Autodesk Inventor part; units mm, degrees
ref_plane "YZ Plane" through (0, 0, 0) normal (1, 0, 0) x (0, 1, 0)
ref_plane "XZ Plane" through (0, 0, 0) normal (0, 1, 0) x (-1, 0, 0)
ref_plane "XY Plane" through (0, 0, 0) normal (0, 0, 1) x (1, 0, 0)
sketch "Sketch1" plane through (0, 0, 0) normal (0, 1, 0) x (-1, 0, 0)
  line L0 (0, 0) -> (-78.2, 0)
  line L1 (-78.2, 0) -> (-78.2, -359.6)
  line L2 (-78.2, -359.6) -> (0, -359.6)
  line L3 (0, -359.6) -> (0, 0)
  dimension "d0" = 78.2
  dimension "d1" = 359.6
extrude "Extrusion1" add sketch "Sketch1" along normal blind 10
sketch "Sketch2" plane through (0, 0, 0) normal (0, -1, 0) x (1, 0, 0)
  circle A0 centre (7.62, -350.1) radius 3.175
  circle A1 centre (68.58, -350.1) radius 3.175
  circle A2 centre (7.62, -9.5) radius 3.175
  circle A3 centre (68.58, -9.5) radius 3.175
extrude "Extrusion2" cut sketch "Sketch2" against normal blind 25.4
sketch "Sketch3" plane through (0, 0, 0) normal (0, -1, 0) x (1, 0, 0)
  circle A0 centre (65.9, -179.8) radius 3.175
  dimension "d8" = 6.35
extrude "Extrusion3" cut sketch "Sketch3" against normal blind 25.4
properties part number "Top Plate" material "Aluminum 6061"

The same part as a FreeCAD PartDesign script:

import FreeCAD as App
import Part
import Sketcher
from FreeCAD import Vector

doc = App.newDocument("Part")
body = doc.addObject("PartDesign::Body", "Body")

# Sketch on XZ plane
sketch1 = body.newObject("Sketcher::SketchObject", "Sketch")
sketch1.AttachmentSupport = (doc.getObject("XZ_Plane"), [""])
sketch1.MapMode = "FlatFace"
sketch1.addGeometry([
    Part.LineSegment(Vector(0, -359.6, 0), Vector(0, 0, 0)),
    Part.LineSegment(Vector(0, 0, 0), Vector(78.2, 0, 0)),
    Part.LineSegment(Vector(78.2, 0, 0), Vector(78.2, -359.6, 0)),
    Part.LineSegment(Vector(78.2, -359.6, 0), Vector(0, -359.6, 0)),
], False)
sketch1.addConstraint([
    Sketcher.Constraint("Coincident", 0, 2, 1, 1),
    Sketcher.Constraint("Coincident", 1, 2, 2, 1),
    Sketcher.Constraint("Coincident", 2, 2, 3, 1),
    Sketcher.Constraint("Coincident", 3, 2, 0, 1),
    Sketcher.Constraint("Vertical", 0),
    Sketcher.Constraint("Horizontal", 1),
    Sketcher.Constraint("Vertical", 2),
    Sketcher.Constraint("Horizontal", 3),
    Sketcher.Constraint("Coincident", 0, 2, -1, 1),
    Sketcher.Constraint("DistanceX", 1, 1, 1, 2, 78.2),
    Sketcher.Constraint("DistanceY", 0, 1, 0, 2, 359.6),
])
pad1 = body.newObject("PartDesign::Pad", "Pad")
pad1.Profile = sketch1
pad1.Length = 10
pad1.Reversed = True

# Sketch on XZ plane
sketch2 = body.newObject("Sketcher::SketchObject", "Sketch001")
sketch2.AttachmentSupport = (doc.getObject("XZ_Plane"), [""])
sketch2.MapMode = "FlatFace"
sketch2.addGeometry([
    Part.Circle(Vector(7.62, -350.1, 0), Vector(0, 0, 1), 3.175),
    Part.Circle(Vector(68.58, -350.1, 0), Vector(0, 0, 1), 3.175),
    Part.Circle(Vector(7.62, -9.5, 0), Vector(0, 0, 1), 3.175),
    Part.Circle(Vector(68.58, -9.5, 0), Vector(0, 0, 1), 3.175),
], False)
sketch2.addConstraint([
    Sketcher.Constraint("Equal", 0, 1),
    Sketcher.Constraint("Equal", 1, 2),
    Sketcher.Constraint("Equal", 2, 3),
    Sketcher.Constraint("Horizontal", 0, 3, 1, 3),
    Sketcher.Constraint("Horizontal", 2, 3, 3, 3),
    Sketcher.Constraint("Vertical", 0, 3, 2, 3),
    Sketcher.Constraint("Vertical", 1, 3, 3, 3),
    Sketcher.Constraint("Diameter", 0, 6.35),
    Sketcher.Constraint("DistanceY", 0, 3, -1, 1, 350.1),
    Sketcher.Constraint("DistanceY", 2, 3, -1, 1, 9.5),
    Sketcher.Constraint("DistanceX", -1, 1, 0, 3, 7.62),
    Sketcher.Constraint("DistanceX", -1, 1, 1, 3, 68.58),
])
pocket1 = body.newObject("PartDesign::Pocket", "Pocket")
pocket1.Profile = sketch2
pocket1.Length = 25.4

# Sketch on XZ plane
sketch3 = body.newObject("Sketcher::SketchObject", "Sketch002")
sketch3.AttachmentSupport = (doc.getObject("XZ_Plane"), [""])
sketch3.MapMode = "FlatFace"
sketch3.addGeometry(Part.Circle(Vector(65.9, -179.8, 0), Vector(0, 0, 1), 3.175), False)
sketch3.addConstraint([
    Sketcher.Constraint("Diameter", 0, 6.35),
    Sketcher.Constraint("DistanceX", -1, 1, 0, 3, 65.9),
    Sketcher.Constraint("DistanceY", 0, 3, -1, 1, 179.8),
])
pocket2 = body.newObject("PartDesign::Pocket", "Pocket001")
pocket2.Profile = sketch3
pocket2.Length = 25.4

doc.recompute()
